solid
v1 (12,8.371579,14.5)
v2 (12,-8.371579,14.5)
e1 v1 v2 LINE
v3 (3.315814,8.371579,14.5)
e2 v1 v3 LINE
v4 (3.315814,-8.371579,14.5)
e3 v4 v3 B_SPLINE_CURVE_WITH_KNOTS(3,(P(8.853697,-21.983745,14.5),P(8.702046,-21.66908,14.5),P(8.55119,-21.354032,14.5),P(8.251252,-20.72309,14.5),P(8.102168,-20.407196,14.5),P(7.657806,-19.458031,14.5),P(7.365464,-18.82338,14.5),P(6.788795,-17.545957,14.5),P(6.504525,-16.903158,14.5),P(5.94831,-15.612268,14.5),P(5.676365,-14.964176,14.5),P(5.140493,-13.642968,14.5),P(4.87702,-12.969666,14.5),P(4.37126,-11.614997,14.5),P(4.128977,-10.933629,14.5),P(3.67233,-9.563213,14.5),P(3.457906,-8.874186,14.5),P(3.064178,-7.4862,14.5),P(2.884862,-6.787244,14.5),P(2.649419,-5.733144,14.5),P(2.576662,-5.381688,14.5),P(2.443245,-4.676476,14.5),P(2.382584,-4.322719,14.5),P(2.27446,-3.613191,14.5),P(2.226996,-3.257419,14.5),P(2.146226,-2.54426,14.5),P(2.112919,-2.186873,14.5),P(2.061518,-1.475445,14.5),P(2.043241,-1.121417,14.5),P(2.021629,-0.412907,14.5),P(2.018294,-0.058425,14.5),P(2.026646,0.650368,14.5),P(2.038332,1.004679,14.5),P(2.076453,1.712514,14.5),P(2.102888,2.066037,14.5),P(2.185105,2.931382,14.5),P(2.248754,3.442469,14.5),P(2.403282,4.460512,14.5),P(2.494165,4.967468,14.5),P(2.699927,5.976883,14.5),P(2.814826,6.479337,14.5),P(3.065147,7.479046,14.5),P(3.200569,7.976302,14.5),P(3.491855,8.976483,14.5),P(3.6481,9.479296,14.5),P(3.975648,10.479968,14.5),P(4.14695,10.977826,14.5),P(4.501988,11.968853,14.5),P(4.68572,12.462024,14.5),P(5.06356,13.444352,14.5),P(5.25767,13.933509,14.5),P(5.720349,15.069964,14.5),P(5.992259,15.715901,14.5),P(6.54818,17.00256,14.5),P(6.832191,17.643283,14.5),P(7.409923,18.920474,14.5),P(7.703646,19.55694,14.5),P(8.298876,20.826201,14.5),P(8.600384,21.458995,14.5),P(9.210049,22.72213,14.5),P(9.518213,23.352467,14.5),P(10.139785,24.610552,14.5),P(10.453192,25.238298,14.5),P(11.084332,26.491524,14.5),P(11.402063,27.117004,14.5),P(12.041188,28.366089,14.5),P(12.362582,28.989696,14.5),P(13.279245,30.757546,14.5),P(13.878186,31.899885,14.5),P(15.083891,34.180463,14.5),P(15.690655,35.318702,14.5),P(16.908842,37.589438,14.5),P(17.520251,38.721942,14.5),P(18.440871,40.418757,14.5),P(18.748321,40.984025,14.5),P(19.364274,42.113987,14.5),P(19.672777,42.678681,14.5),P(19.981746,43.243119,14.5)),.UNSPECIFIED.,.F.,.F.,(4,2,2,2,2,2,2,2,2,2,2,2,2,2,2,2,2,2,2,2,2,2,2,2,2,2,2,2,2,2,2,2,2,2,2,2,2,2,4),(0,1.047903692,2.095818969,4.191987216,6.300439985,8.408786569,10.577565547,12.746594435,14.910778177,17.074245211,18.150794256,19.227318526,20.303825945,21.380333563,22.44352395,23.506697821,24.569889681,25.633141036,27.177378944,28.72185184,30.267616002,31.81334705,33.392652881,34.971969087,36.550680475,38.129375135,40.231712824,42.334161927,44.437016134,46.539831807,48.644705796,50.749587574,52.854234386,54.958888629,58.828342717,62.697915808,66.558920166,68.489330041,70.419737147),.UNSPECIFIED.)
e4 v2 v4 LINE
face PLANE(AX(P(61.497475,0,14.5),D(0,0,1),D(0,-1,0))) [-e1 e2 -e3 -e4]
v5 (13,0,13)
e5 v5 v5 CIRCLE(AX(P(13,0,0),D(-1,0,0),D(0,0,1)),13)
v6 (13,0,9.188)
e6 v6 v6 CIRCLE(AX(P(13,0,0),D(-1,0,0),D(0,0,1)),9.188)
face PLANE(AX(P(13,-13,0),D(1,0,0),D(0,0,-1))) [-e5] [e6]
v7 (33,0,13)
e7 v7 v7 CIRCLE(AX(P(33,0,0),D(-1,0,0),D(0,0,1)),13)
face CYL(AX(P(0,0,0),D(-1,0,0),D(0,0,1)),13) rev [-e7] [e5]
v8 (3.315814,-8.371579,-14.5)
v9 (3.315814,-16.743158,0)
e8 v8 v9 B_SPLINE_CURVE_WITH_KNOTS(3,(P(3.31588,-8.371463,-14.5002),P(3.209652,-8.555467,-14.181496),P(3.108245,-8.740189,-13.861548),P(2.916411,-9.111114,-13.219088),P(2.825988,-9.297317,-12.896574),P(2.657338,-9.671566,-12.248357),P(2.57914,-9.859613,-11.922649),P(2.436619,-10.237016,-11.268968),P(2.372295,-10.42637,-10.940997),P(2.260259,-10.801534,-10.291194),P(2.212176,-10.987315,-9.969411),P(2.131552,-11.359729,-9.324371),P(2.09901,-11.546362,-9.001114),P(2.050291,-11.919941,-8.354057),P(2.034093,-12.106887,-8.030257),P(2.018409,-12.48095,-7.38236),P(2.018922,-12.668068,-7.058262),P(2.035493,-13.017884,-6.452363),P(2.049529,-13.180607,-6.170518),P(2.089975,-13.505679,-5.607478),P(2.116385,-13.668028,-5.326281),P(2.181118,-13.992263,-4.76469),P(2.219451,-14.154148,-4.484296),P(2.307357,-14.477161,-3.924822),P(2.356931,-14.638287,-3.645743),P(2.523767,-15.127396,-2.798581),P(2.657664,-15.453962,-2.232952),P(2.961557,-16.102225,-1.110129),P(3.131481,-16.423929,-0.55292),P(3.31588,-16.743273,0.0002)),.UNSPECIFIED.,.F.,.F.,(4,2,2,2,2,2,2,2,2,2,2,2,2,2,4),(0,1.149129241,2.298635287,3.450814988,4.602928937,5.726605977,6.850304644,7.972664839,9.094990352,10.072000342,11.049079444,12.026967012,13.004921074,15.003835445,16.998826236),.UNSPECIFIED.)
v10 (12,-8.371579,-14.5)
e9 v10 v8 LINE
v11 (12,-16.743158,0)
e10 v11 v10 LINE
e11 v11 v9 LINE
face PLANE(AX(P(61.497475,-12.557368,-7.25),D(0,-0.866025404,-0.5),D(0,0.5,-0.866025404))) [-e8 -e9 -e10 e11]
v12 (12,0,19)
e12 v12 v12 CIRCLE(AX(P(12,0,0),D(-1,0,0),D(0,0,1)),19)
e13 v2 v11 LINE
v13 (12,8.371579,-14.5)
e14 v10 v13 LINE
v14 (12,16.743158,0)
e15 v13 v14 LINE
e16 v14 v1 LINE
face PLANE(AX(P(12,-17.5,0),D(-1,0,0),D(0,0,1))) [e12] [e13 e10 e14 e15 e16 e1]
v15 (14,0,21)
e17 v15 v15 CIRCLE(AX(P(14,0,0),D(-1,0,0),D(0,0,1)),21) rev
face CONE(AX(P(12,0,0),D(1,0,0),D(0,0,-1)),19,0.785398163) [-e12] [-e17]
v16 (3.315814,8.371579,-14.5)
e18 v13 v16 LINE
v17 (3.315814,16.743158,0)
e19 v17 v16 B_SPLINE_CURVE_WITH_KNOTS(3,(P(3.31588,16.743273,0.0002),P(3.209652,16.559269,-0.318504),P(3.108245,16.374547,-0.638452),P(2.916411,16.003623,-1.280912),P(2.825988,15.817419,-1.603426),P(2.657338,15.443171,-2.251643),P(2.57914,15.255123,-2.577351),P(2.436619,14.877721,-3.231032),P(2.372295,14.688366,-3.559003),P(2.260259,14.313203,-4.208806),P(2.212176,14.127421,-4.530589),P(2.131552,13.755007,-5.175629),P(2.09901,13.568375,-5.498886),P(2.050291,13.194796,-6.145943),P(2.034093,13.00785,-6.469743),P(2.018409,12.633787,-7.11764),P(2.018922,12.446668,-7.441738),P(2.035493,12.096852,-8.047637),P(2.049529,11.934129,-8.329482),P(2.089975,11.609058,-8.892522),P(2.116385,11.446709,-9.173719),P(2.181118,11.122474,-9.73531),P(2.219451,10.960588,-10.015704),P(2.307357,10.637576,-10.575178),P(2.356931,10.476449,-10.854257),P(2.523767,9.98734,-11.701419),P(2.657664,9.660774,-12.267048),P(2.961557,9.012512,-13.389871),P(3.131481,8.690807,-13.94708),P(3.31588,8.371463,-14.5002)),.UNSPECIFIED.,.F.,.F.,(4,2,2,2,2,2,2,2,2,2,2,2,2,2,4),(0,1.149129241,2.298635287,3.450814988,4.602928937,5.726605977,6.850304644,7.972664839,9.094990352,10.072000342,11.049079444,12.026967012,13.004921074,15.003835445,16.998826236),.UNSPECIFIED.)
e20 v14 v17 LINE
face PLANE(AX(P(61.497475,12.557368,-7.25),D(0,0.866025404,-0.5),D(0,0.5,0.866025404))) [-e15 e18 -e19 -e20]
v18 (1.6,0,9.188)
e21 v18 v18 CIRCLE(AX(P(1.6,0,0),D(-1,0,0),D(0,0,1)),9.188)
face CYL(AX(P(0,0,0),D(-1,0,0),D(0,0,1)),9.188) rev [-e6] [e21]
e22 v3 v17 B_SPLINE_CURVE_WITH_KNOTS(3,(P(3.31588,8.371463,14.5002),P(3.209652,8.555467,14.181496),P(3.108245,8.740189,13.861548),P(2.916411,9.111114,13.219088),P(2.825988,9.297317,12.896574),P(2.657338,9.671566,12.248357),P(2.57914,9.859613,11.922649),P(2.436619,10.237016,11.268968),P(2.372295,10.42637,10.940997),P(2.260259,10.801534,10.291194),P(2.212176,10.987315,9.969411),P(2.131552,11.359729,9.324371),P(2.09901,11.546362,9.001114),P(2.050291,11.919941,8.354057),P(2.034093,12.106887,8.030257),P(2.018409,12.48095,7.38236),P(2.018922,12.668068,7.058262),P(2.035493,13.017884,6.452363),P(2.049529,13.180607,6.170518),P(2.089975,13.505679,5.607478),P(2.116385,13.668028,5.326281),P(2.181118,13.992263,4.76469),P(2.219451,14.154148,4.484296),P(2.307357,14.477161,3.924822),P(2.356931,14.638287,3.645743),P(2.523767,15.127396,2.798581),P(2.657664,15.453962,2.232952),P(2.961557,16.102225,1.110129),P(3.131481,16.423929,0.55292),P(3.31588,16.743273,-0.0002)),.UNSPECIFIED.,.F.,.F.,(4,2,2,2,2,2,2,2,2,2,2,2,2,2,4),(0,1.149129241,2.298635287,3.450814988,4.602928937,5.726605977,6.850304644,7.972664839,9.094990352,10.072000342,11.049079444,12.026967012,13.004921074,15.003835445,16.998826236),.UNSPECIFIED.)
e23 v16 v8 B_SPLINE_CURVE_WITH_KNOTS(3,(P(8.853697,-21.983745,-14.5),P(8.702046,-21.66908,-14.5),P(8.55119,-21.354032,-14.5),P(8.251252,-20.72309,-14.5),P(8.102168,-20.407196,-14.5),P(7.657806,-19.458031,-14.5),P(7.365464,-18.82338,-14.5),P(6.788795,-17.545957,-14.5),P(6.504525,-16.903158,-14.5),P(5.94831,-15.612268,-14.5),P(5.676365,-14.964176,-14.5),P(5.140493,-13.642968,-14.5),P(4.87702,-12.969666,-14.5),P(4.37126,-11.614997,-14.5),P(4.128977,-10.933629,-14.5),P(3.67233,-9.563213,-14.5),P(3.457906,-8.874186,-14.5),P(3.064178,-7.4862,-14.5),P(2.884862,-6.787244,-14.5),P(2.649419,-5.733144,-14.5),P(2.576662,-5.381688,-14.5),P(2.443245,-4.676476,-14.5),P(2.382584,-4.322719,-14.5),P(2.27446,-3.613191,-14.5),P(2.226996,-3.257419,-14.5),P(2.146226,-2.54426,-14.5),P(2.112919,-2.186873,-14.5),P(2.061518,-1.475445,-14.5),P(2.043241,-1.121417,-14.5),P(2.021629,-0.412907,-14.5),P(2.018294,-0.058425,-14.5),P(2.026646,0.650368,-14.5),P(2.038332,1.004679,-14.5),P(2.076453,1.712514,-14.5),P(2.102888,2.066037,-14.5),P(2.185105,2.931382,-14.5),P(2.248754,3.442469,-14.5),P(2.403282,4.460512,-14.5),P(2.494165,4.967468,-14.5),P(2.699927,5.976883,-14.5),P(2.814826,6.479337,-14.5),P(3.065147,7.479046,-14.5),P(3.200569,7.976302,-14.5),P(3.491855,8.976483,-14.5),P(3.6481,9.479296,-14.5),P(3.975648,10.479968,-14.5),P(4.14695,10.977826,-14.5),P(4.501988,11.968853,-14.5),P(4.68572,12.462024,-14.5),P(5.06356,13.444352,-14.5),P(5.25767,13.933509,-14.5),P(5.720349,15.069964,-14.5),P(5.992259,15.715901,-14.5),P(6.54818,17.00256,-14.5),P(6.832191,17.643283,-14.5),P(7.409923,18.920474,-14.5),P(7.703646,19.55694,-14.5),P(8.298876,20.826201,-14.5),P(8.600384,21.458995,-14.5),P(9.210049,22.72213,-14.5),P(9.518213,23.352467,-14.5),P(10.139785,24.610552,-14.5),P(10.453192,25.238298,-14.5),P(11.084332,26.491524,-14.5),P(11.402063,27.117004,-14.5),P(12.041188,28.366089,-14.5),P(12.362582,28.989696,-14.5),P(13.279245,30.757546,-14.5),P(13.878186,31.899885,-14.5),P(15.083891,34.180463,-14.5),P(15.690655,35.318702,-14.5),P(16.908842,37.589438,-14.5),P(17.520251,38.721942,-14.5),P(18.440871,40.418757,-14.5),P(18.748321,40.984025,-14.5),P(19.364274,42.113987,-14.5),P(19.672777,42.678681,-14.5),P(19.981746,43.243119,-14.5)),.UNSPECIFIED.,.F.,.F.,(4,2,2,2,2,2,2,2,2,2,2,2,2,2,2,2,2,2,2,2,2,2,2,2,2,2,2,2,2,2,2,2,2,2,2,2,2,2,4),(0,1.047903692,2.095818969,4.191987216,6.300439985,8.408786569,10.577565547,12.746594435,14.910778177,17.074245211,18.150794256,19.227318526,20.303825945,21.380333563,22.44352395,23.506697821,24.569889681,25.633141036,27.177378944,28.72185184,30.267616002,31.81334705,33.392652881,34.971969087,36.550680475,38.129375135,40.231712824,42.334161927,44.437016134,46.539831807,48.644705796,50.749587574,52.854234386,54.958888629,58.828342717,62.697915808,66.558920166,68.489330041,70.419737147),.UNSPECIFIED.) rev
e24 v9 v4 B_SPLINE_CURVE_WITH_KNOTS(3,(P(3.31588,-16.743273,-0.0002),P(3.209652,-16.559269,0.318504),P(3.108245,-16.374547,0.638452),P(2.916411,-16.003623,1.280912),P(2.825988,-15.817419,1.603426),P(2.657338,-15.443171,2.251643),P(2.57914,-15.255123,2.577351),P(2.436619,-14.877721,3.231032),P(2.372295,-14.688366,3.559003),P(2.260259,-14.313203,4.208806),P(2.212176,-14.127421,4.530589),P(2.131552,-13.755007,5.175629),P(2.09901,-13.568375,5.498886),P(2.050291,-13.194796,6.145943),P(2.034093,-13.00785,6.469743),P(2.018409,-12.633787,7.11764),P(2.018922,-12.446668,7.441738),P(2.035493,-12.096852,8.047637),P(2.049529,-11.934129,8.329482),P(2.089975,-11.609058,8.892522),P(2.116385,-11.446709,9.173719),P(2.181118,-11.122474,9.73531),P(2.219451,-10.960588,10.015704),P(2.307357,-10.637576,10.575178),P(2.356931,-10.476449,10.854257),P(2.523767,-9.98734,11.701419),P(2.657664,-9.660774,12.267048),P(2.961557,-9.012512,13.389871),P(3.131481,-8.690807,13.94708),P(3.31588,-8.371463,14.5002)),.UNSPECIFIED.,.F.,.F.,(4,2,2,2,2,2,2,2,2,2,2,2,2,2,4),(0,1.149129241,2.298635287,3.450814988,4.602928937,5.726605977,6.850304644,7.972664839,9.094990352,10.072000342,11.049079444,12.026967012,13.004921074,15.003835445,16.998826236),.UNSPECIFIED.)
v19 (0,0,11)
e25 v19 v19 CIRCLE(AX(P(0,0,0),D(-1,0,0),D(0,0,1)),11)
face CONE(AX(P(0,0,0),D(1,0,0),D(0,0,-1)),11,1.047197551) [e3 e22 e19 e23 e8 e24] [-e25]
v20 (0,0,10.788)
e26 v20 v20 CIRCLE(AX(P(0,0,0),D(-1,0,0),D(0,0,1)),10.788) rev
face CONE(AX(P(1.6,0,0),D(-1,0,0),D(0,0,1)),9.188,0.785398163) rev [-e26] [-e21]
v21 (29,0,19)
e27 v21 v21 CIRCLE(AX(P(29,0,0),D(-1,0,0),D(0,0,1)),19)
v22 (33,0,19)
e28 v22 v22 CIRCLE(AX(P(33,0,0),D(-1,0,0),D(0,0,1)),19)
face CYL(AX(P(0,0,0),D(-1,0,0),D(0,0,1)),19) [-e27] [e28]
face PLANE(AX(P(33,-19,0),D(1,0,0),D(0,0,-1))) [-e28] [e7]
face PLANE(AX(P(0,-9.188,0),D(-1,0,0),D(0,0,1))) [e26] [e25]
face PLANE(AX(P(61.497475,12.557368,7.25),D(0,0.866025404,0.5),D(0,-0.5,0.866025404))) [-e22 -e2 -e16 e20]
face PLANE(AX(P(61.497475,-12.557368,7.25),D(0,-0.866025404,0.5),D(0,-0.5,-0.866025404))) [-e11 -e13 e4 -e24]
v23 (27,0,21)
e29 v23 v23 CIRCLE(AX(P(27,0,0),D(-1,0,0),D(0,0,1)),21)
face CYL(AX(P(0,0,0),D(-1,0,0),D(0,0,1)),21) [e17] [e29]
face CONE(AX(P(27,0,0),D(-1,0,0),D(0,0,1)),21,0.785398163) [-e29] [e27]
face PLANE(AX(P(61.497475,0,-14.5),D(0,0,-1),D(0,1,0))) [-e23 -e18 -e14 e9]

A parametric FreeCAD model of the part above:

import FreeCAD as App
import Part
import Sketcher
Q = App.Units.Quantity


def edges_at(feature, points):
    """Names of the edges that pass closest to the given points."""
    edges = feature.Shape.Edges
    near = lambda p: min(range(len(edges)), key=lambda i: edges[i].distToShape(Part.Vertex(*p))[0])
    return sorted({f"Edge{near(p) + 1}" for p in points})

doc = App.newDocument("Part")
body = doc.addObject("PartDesign::Body", "Body")

# Sketch on XY plane
sketch1 = body.newObject("Sketcher::SketchObject", "Sketch")
sketch1.AttachmentSupport = (doc.getObject("XY_Plane"), [""])
sketch1.MapMode = "FlatFace"
sketch1.addGeometry(Part.LineSegment(App.Vector(0, -9.2, 0), App.Vector(0, -11, 0)), False)
sketch1.addGeometry(Part.LineSegment(App.Vector(0, -11, 0), App.Vector(3.8, -17.5, 0)), False)
sketch1.addGeometry(Part.LineSegment(App.Vector(3.8, -17.5, 0), App.Vector(12, -17.5, 0)), False)
sketch1.addGeometry(Part.LineSegment(App.Vector(12, -17.5, 0), App.Vector(12, -21, 0)), False)
sketch1.addGeometry(Part.LineSegment(App.Vector(12, -21, 0), App.Vector(27, -21, 0)), False)
sketch1.addGeometry(Part.LineSegment(App.Vector(27, -21, 0), App.Vector(29, -19, 0)), False)
sketch1.addGeometry(Part.LineSegment(App.Vector(29, -19, 0), App.Vector(33, -19, 0)), False)
sketch1.addGeometry(Part.LineSegment(App.Vector(33, -19, 0), App.Vector(33, -13, 0)), False)
sketch1.addGeometry(Part.LineSegment(App.Vector(33, -13, 0), App.Vector(13, -13, 0)), False)
sketch1.addGeometry(Part.LineSegment(App.Vector(13, -13, 0), App.Vector(13, -9.2, 0)), False)
sketch1.addGeometry(Part.LineSegment(App.Vector(13, -9.2, 0), App.Vector(0, -9.2, 0)), False)
sketch1.addConstraint(Sketcher.Constraint("Coincident", 0, 2, 1, 1))
sketch1.addConstraint(Sketcher.Constraint("Coincident", 1, 2, 2, 1))
sketch1.addConstraint(Sketcher.Constraint("Coincident", 2, 2, 3, 1))
sketch1.addConstraint(Sketcher.Constraint("Coincident", 3, 2, 4, 1))
sketch1.addConstraint(Sketcher.Constraint("Coincident", 4, 2, 5, 1))
sketch1.addConstraint(Sketcher.Constraint("Coincident", 5, 2, 6, 1))
sketch1.addConstraint(Sketcher.Constraint("Coincident", 6, 2, 7, 1))
sketch1.addConstraint(Sketcher.Constraint("Coincident", 7, 2, 8, 1))
sketch1.addConstraint(Sketcher.Constraint("Coincident", 8, 2, 9, 1))
sketch1.addConstraint(Sketcher.Constraint("Coincident", 9, 2, 10, 1))
sketch1.addConstraint(Sketcher.Constraint("Coincident", 10, 2, 0, 1))
sketch1.addConstraint(Sketcher.Constraint("Vertical", 0))
sketch1.addConstraint(Sketcher.Constraint("Horizontal", 2))
sketch1.addConstraint(Sketcher.Constraint("Vertical", 3))
sketch1.addConstraint(Sketcher.Constraint("Horizontal", 4))
sketch1.addConstraint(Sketcher.Constraint("Horizontal", 6))
sketch1.addConstraint(Sketcher.Constraint("Vertical", 7))
sketch1.addConstraint(Sketcher.Constraint("Horizontal", 8))
sketch1.addConstraint(Sketcher.Constraint("Vertical", 9))
sketch1.addConstraint(Sketcher.Constraint("Horizontal", 10))
sketch1.addConstraint(Sketcher.Constraint("PointOnObject", 0, 2, -2))
sketch1.addConstraint(Sketcher.Constraint("DistanceX", 4, 1, 4, 2, 15.0))
sketch1.addConstraint(Sketcher.Constraint("DistanceX", 6, 1, 6, 2, 4.0))
sketch1.addConstraint(Sketcher.Constraint("DistanceX", 8, 2, 8, 1, 20.0))
sketch1.addConstraint(Sketcher.Constraint("DistanceX", 10, 2, 10, 1, 13.0))
sketch1.addConstraint(Sketcher.Constraint("DistanceY", 7, 1, 7, 2, 6.0))
sketch1.addConstraint(Sketcher.Constraint("Angle", 1, Q("-60 deg")))
sketch1.addConstraint(Sketcher.Constraint("Angle", 5, Q("45 deg")))
sketch1.addConstraint(Sketcher.Constraint("DistanceY", 3, 2, 3, 1, 3.5))
sketch1.addConstraint(Sketcher.Constraint("DistanceY", 0, 2, -1, 1, 11.0))
sketch1.addConstraint(Sketcher.Constraint("DistanceX", -1, 1, 2, 2, 12.0))
sketch1.addConstraint(Sketcher.Constraint("DistanceY", 3, 2, -1, 1, 21.0))
sketch1.addConstraint(Sketcher.Constraint("DistanceY", 0, 2, 0, 1, 1.812))
revolution = body.newObject("PartDesign::Revolution", "Revolution")
revolution.Profile = sketch1
revolution.ReferenceAxis = (sketch1, ["H_Axis"])
revolution.Angle = 360

# Sketch on YZ plane
sketch2 = body.newObject("Sketcher::SketchObject", "Sketch001")
sketch2.AttachmentSupport = (doc.getObject("YZ_Plane"), [""])
sketch2.MapMode = "FlatFace"
sketch2.AttachmentOffset = App.Placement(App.Vector(0, 0, 12), App.Rotation())
sketch2.addGeometry(Part.Circle(App.Vector(0, 0, 0), App.Vector(0, 0, 1), 18), False)
sketch2.addGeometry(Part.LineSegment(App.Vector(8, -14, 0), App.Vector(17, 0, 0)), False)
sketch2.addGeometry(Part.LineSegment(App.Vector(17, 0, 0), App.Vector(8, 14, 0)), False)
sketch2.addGeometry(Part.LineSegment(App.Vector(8, 14, 0), App.Vector(-8, 14, 0)), False)
sketch2.addGeometry(Part.LineSegment(App.Vector(-8, 14, 0), App.Vector(-17, 0, 0)), False)
sketch2.addGeometry(Part.LineSegment(App.Vector(-17, 0, 0), App.Vector(-8, -14, 0)), False)
sketch2.addGeometry(Part.LineSegment(App.Vector(-8, -14, 0), App.Vector(8, -14, 0)), False)
sketch2.addConstraint(Sketcher.Constraint("Coincident", 1, 2, 2, 1))
sketch2.addConstraint(Sketcher.Constraint("Coincident", 2, 2, 3, 1))
sketch2.addConstraint(Sketcher.Constraint("Coincident", 3, 2, 4, 1))
sketch2.addConstraint(Sketcher.Constraint("Coincident", 4, 2, 5, 1))
sketch2.addConstraint(Sketcher.Constraint("Coincident", 5, 2, 6, 1))
sketch2.addConstraint(Sketcher.Constraint("Coincident", 6, 2, 1, 1))
sketch2.addConstraint(Sketcher.Constraint("Horizontal", 3))
sketch2.addConstraint(Sketcher.Constraint("Horizontal", 6))
sketch2.addConstraint(Sketcher.Constraint("Coincident", 0, 3, -1, 1))
sketch2.addConstraint(Sketcher.Constraint("Symmetric", 1, 2, 4, 2, -1, 1))
sketch2.addConstraint(Sketcher.Constraint("Symmetric", 2, 2, 5, 2, -1, 1))
sketch2.addConstraint(Sketcher.Constraint("PointOnObject", 1, 2, -1))
sketch2.addConstraint(Sketcher.Constraint("Parallel", 1, 4))
sketch2.addConstraint(Sketcher.Constraint("Vertical", 3, 2, 5, 2))
sketch2.addConstraint(Sketcher.Constraint("Diameter", 0, 35.0))
sketch2.addConstraint(Sketcher.Constraint("Angle", 1, Q("60 deg")))
sketch2.addConstraint(Sketcher.Constraint("DistanceY", 5, 2, 3, 2, 29.0))
sketch2.addConstraint(Sketcher.Constraint("DistanceX", 3, 2, 3, 1, 16.743158))
pocket1 = body.newObject("PartDesign::Pocket", "Pocket")
pocket1.Profile = sketch2
pocket1.Length = 12
doc.recompute()

chamfer = body.newObject("PartDesign::Chamfer", "Chamfer")
chamfer.Base = (pocket1, edges_at(pocket1, [(12, 0, -21)]))
chamfer.Size = 2
doc.recompute()

chamfer2 = body.newObject("PartDesign::Chamfer", "Chamfer001")
chamfer2.Base = (chamfer, edges_at(chamfer, [(0, 0, -9.188)]))
chamfer2.Size = 1.6

doc.recompute()
